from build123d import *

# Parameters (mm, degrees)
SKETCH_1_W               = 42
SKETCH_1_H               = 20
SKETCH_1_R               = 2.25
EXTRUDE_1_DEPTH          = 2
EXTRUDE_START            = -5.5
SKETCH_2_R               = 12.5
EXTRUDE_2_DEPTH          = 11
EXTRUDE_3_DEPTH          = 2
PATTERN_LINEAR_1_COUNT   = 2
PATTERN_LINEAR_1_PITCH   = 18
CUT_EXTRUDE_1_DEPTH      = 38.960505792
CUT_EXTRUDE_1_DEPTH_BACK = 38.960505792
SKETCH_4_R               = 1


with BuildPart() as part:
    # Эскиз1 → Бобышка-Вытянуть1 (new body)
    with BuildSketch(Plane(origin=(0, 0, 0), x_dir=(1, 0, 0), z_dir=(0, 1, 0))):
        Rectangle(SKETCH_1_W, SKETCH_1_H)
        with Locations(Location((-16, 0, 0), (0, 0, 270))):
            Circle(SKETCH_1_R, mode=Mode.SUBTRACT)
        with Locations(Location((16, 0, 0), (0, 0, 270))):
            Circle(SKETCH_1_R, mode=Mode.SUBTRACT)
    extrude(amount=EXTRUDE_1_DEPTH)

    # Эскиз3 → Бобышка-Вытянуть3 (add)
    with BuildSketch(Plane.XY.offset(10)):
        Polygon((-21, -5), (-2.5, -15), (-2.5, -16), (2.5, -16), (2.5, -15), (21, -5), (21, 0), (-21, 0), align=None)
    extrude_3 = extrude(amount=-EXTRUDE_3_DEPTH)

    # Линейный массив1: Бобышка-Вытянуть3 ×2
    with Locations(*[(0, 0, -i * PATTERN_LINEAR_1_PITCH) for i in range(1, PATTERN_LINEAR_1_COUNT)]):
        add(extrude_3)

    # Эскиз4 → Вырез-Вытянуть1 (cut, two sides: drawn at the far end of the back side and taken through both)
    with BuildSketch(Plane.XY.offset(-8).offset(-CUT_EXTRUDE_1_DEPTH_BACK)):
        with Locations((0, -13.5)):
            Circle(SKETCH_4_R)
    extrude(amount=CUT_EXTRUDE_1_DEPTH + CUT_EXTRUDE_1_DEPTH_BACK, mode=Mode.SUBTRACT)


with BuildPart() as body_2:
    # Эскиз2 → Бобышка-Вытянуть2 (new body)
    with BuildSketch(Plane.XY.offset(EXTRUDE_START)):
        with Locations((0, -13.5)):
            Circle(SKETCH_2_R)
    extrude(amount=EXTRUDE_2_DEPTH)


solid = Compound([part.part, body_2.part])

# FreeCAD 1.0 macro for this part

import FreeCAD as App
import Part
import Sketcher

doc = App.newDocument("Part")
body = doc.addObject("PartDesign::Body", "Body")

# Sketch on XZ plane
sketch1 = doc.addObject("Sketcher::SketchObject", "Sketch")
body.addObject(sketch1)
sketch1.AttachmentSupport = (doc.XZ_Plane, [""])
sketch1.MapMode = "FlatFace"
sketch1.addGeometry([
    Part.LineSegment(App.Vector(-21, -10, 0), App.Vector(-21, 10, 0)),  # 0
    Part.LineSegment(App.Vector(-21, 10, 0), App.Vector(21, 10, 0)),  # 1
    Part.LineSegment(App.Vector(21, 10, 0), App.Vector(21, -10, 0)),  # 2
    Part.LineSegment(App.Vector(21, -10, 0), App.Vector(-21, -10, 0)),  # 3
    Part.Circle(App.Vector(-16, 0, 0), App.Vector(0, 0, 1), 2.25),  # 4
    Part.Circle(App.Vector(16, 0, 0), App.Vector(0, 0, 1), 2.25),  # 5
], False)
sketch1.addConstraint([
    Sketcher.Constraint("Coincident", 0, 2, 1, 1),
    Sketcher.Constraint("Coincident", 1, 2, 2, 1),
    Sketcher.Constraint("Coincident", 2, 2, 3, 1),
    Sketcher.Constraint("Coincident", 3, 2, 0, 1),
    Sketcher.Constraint("Vertical", 0),
    Sketcher.Constraint("Horizontal", 1),
    Sketcher.Constraint("Vertical", 2),
    Sketcher.Constraint("Horizontal", 3),
    Sketcher.Constraint("Equal", 4, 5),
    Sketcher.Constraint("Symmetric", 4, 3, 5, 3, -1, 1),
    Sketcher.Constraint("Symmetric", 0, 2, 2, 2, -1, 1),
    Sketcher.Constraint("PointOnObject", 4, 3, -1),
    Sketcher.Constraint("Diameter", 4, 4.5),
    Sketcher.Constraint("DistanceX", 1, 1, 1, 2, 42.0),
    Sketcher.Constraint("DistanceY", 0, 1, 0, 2, 20.0),
    Sketcher.Constraint("DistanceX", 4, 3, -1, 1, 16.0),
])
pad1 = doc.addObject("PartDesign::Pad", "Pad")
body.addObject(pad1)
pad1.Profile = sketch1
pad1.Length = 2
pad1.Reversed = True

# Sketch on XY plane
sketch2 = doc.addObject("Sketcher::SketchObject", "Sketch001")
body.addObject(sketch2)
sketch2.AttachmentSupport = (doc.XY_Plane, [""])
sketch2.MapMode = "FlatFace"
sketch2.AttachmentOffset = App.Placement(App.Vector(0, 0, 10), App.Rotation())
sketch2.addGeometry([
    Part.LineSegment(App.Vector(-21, -5, 0), App.Vector(-2.5, -15, 0)),  # 0
    Part.LineSegment(App.Vector(-2.5, -15, 0), App.Vector(-2.5, -16, 0)),  # 1
    Part.LineSegment(App.Vector(-2.5, -16, 0), App.Vector(2.5, -16, 0)),  # 2
    Part.LineSegment(App.Vector(2.5, -16, 0), App.Vector(2.5, -15, 0)),  # 3
    Part.LineSegment(App.Vector(2.5, -15, 0), App.Vector(21, -5, 0)),  # 4
    Part.LineSegment(App.Vector(21, -5, 0), App.Vector(21, 0, 0)),  # 5
    Part.LineSegment(App.Vector(21, 0, 0), App.Vector(-21, 0, 0)),  # 6
    Part.LineSegment(App.Vector(-21, 0, 0), App.Vector(-21, -5, 0)),  # 7
], False)
sketch2.addConstraint([
    Sketcher.Constraint("Coincident", 0, 2, 1, 1),
    Sketcher.Constraint("Coincident", 1, 2, 2, 1),
    Sketcher.Constraint("Coincident", 2, 2, 3, 1),
    Sketcher.Constraint("Coincident", 3, 2, 4, 1),
    Sketcher.Constraint("Coincident", 4, 2, 5, 1),
    Sketcher.Constraint("Coincident", 5, 2, 6, 1),
    Sketcher.Constraint("Coincident", 6, 2, 7, 1),
    Sketcher.Constraint("Coincident", 7, 2, 0, 1),
    Sketcher.Constraint("Vertical", 1),
    Sketcher.Constraint("Horizontal", 2),
    Sketcher.Constraint("Vertical", 3),
    Sketcher.Constraint("Vertical", 5),
    Sketcher.Constraint("Horizontal", 6),
    Sketcher.Constraint("Vertical", 7),
    Sketcher.Constraint("Symmetric", 5, 2, 6, 2, -1, 1),
    Sketcher.Constraint("Symmetric", 0, 2, 3, 2, -2),
    Sketcher.Constraint("Horizontal", 4, 2, 7, 2),
    Sketcher.Constraint("Equal", 2, 5),
    Sketcher.Constraint("DistanceX", 2, 1, 2, 2, 5.0),
    Sketcher.Constraint("DistanceX", 6, 2, 6, 1, 42.0),
    Sketcher.Constraint("DistanceY", 1, 2, 1, 1, 1.0),
    Sketcher.Constraint("DistanceY", 0, 2, -1, 1, 15.0),
])
pad2 = doc.addObject("PartDesign::Pad", "Pad001")
body.addObject(pad2)
pad2.Profile = sketch2
pad2.Length = 2
pad2.Reversed = True
doc.recompute()

linearpattern = doc.addObject("PartDesign::LinearPattern", "LinearPattern")
body.addObject(linearpattern)
linearpattern.Originals = [pad2]
linearpattern.Direction = (doc.Z_Axis, [""])
linearpattern.Mode = "offset"
linearpattern.Offset = 18
linearpattern.Occurrences = 2
linearpattern.Reversed = True
body.Tip = linearpattern

# Sketch on XY plane
sketch3 = doc.addObject("Sketcher::SketchObject", "Sketch002")
body.addObject(sketch3)
sketch3.AttachmentSupport = (doc.XY_Plane, [""])
sketch3.MapMode = "FlatFace"
sketch3.AttachmentOffset = App.Placement(App.Vector(0, 0, -8), App.Rotation())
sketch3.addGeometry(Part.Circle(App.Vector(0, -13.5, 0), App.Vector(0, 0, 1), 1), False)
sketch3.addConstraint([
    Sketcher.Constraint("PointOnObject", 0, 3, -2),
    Sketcher.Constraint("Diameter", 0, 2.0),
    Sketcher.Constraint("DistanceY", 0, 3, -1, 1, 13.5),
])
pocket1 = doc.addObject("PartDesign::Pocket", "Pocket")
body.addObject(pocket1)
pocket1.Profile = sketch3
pocket1.Type = "ThroughAll"
pocket1.Midplane = True
body2 = doc.addObject("PartDesign::Body", "Body001")

# Sketch on XY plane
sketch4 = doc.addObject("Sketcher::SketchObject", "Sketch003")
body2.addObject(sketch4)
sketch4.AttachmentSupport = (doc.getObject("XY_Plane001"), [""])
sketch4.MapMode = "FlatFace"
sketch4.AttachmentOffset = App.Placement(App.Vector(0, 0, -5.5), App.Rotation())
sketch4.addGeometry(Part.Circle(App.Vector(0, -13.5, 0), App.Vector(0, 0, 1), 12.5), False)
sketch4.addConstraint([
    Sketcher.Constraint("PointOnObject", 0, 3, -2),
    Sketcher.Constraint("Diameter", 0, 25.0),
    Sketcher.Constraint("DistanceY", 0, 3, -1, 1, 13.5),
])
pad3 = doc.addObject("PartDesign::Pad", "Pad002")
body2.addObject(pad3)
pad3.Profile = sketch4
pad3.Length = 11

doc.recompute()
